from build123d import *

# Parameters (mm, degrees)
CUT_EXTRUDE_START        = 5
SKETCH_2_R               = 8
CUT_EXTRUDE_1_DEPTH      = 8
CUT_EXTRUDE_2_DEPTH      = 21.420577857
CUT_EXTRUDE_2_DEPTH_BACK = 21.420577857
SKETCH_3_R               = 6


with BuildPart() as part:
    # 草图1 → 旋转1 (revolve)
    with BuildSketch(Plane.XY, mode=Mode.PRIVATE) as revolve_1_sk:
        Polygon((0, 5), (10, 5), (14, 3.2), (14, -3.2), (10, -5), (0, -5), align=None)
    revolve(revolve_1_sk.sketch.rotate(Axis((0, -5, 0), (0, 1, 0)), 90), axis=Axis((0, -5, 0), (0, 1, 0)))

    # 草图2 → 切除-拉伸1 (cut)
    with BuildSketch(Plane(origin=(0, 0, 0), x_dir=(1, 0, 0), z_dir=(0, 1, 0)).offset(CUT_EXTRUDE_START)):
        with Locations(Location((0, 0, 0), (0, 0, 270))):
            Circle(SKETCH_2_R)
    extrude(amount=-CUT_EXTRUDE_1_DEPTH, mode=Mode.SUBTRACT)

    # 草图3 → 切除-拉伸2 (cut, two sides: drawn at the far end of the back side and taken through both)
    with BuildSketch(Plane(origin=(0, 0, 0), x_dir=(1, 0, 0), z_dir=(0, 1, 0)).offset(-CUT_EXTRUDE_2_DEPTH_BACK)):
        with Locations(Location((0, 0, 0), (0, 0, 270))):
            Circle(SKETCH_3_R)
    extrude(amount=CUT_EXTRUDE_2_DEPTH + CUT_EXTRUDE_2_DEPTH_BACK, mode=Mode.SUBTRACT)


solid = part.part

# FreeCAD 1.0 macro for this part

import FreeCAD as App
import Part
import Sketcher
Q = App.Units.Quantity


def add_polygon(sketch, points):
    """Adds a closed chain of lines whose ends are joined by coincident constraints."""
    first, n = sketch.GeometryCount, len(points)
    for a, b in zip(points, points[1:] + points[:1]):
        sketch.addGeometry(Part.LineSegment(App.Vector(*a, 0), App.Vector(*b, 0)), False)
    for i in range(n):
        sketch.addConstraint(Sketcher.Constraint("Coincident", first + i, 2, first + (i + 1) % n, 1))

doc = App.newDocument("Part")
body = doc.addObject("PartDesign::Body", "Body")

# Sketch on XY plane
sketch1 = body.newObject("Sketcher::SketchObject", "Sketch")
sketch1.AttachmentSupport = (doc.getObject("XY_Plane"), [""])
sketch1.MapMode = "FlatFace"
add_polygon(sketch1, [(10, 5), (0, 5), (0, -5), (10, -5), (14, -3.2), (14, 3.2)])  # lines 0-5
sketch1.addConstraint([
    Sketcher.Constraint("Horizontal", 0),
    Sketcher.Constraint("Vertical", 1),
    Sketcher.Constraint("Horizontal", 2),
    Sketcher.Constraint("Vertical", 4),
    Sketcher.Constraint("Symmetric", 0, 2, 1, 2, -1, 1),
    Sketcher.Constraint("Vertical", 2, 2, 5, 2),
    Sketcher.Constraint("Equal", 2, 1),
    Sketcher.Constraint("Equal", 3, 5),
    Sketcher.Constraint("DistanceX", 0, 2, 0, 1, Q("10 mm")),
    Sketcher.Constraint("DistanceY", 4, 1, 4, 2, Q("6.4 mm")),
    Sketcher.Constraint("DistanceX", -1, 1, 3, 2, Q("14 mm")),
])
revolution = body.newObject("PartDesign::Revolution", "Revolution")
revolution.Profile = sketch1
revolution.ReferenceAxis = (sketch1, ["V_Axis"])
revolution.Angle = 360

# Sketch on XZ plane
sketch2 = body.newObject("Sketcher::SketchObject", "Sketch001")
sketch2.AttachmentSupport = (doc.getObject("XZ_Plane"), [""])
sketch2.MapMode = "FlatFace"
sketch2.AttachmentOffset = App.Placement(App.Vector(0, 0, -5), App.Rotation())
sketch2.addGeometry(Part.Circle(App.Vector(0, 0, 0), App.Vector(0, 0, 1), 8), False)
sketch2.addConstraint([
    Sketcher.Constraint("Coincident", 0, 3, -1, 1),
    Sketcher.Constraint("Diameter", 0, Q("16 mm")),
])
pocket1 = body.newObject("PartDesign::Pocket", "Pocket")
pocket1.Profile = sketch2
pocket1.Length = 8
pocket1.Reversed = True

# Sketch on XZ plane
sketch3 = body.newObject("Sketcher::SketchObject", "Sketch002")
sketch3.AttachmentSupport = (doc.getObject("XZ_Plane"), [""])
sketch3.MapMode = "FlatFace"
sketch3.addGeometry(Part.Circle(App.Vector(0, 0, 0), App.Vector(0, 0, 1), 6), False)
sketch3.addConstraint([
    Sketcher.Constraint("Coincident", 0, 3, -1, 1),
    Sketcher.Constraint("Diameter", 0, Q("12 mm")),
])
pocket2 = body.newObject("PartDesign::Pocket", "Pocket001")
pocket2.Profile = sketch3
pocket2.Type = "ThroughAll"
pocket2.Midplane = True

doc.recompute()
